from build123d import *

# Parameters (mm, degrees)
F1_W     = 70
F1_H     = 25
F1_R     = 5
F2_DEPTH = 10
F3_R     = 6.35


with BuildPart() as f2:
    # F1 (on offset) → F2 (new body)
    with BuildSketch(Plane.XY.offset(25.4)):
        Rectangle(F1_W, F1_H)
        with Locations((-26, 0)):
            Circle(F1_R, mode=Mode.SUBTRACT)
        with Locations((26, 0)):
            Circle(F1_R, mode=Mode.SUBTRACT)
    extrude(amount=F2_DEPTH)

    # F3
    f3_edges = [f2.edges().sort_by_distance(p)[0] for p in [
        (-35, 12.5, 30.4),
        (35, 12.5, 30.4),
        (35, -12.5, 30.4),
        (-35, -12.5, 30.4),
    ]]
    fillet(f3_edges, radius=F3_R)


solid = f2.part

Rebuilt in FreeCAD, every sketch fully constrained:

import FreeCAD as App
import Part
import Sketcher

V = App.Vector


def edges_at(feature, points):
    """Names of the edges that pass closest to the given points."""
    edges = feature.Shape.Edges
    near = lambda p: min(range(len(edges)), key=lambda i: edges[i].distToShape(Part.Vertex(*p))[0])
    return sorted({f"Edge{near(p) + 1}" for p in points})

doc = App.newDocument("Part")
body = doc.addObject("PartDesign::Body", "Body")

sketch1 = doc.addObject("Sketcher::SketchObject", "Sketch")
body.addObject(sketch1)
sketch1.AttachmentSupport = (doc.XY_Plane, [""])
sketch1.MapMode = "FlatFace"
sketch1.AttachmentOffset = App.Placement(V(0, 0, 25.4), App.Rotation())
sketch1.addGeometry(Part.LineSegment(V(-35, 12, 0), V(-35, -12, 0)), False)
sketch1.addGeometry(Part.LineSegment(V(-35, -12, 0), V(35, -12, 0)), False)
sketch1.addGeometry(Part.LineSegment(V(35, -12, 0), V(35, 12, 0)), False)
sketch1.addGeometry(Part.LineSegment(V(35, 12, 0), V(-35, 12, 0)), False)
sketch1.addGeometry(Part.Circle(V(-26, 0, 0), V(0, 0, 1), 5), False)
sketch1.addGeometry(Part.Circle(V(26, 0, 0), V(0, 0, 1), 5), False)
sketch1.addConstraint(Sketcher.Constraint("Coincident", 0, 2, 1, 1))
sketch1.addConstraint(Sketcher.Constraint("Coincident", 1, 2, 2, 1))
sketch1.addConstraint(Sketcher.Constraint("Coincident", 2, 2, 3, 1))
sketch1.addConstraint(Sketcher.Constraint("Coincident", 3, 2, 0, 1))
sketch1.addConstraint(Sketcher.Constraint("Vertical", 0))
sketch1.addConstraint(Sketcher.Constraint("Horizontal", 1))
sketch1.addConstraint(Sketcher.Constraint("Vertical", 2))
sketch1.addConstraint(Sketcher.Constraint("Horizontal", 3))
sketch1.addConstraint(Sketcher.Constraint("Equal", 4, 5))
sketch1.addConstraint(Sketcher.Constraint("Symmetric", 4, 3, 5, 3, -1, 1))
sketch1.addConstraint(Sketcher.Constraint("Symmetric", 0, 2, 2, 2, -1, 1))
sketch1.addConstraint(Sketcher.Constraint("PointOnObject", 4, 3, -1))
sketch1.addConstraint(Sketcher.Constraint("Diameter", 4, 10.0))
sketch1.addConstraint(Sketcher.Constraint("DistanceX", 1, 1, 1, 2, 70.0))
sketch1.addConstraint(Sketcher.Constraint("DistanceY", 0, 2, 0, 1, 25.0))
sketch1.addConstraint(Sketcher.Constraint("DistanceX", 4, 3, -1, 1, 26.0))
pad1 = doc.addObject("PartDesign::Pad", "Pad")
body.addObject(pad1)
pad1.Profile = sketch1
pad1.Length = 10
doc.recompute()

fillet = doc.addObject("PartDesign::Fillet", "Fillet")
body.addObject(fillet)
fillet.Base = (pad1, edges_at(pad1, [
    (-35, 12.5, 30.4),
    (35, 12.5, 30.4),
    (35, -12.5, 30.4),
    (-35, -12.5, 30.4),
]))
fillet.Radius = 6.35

doc.recompute()
